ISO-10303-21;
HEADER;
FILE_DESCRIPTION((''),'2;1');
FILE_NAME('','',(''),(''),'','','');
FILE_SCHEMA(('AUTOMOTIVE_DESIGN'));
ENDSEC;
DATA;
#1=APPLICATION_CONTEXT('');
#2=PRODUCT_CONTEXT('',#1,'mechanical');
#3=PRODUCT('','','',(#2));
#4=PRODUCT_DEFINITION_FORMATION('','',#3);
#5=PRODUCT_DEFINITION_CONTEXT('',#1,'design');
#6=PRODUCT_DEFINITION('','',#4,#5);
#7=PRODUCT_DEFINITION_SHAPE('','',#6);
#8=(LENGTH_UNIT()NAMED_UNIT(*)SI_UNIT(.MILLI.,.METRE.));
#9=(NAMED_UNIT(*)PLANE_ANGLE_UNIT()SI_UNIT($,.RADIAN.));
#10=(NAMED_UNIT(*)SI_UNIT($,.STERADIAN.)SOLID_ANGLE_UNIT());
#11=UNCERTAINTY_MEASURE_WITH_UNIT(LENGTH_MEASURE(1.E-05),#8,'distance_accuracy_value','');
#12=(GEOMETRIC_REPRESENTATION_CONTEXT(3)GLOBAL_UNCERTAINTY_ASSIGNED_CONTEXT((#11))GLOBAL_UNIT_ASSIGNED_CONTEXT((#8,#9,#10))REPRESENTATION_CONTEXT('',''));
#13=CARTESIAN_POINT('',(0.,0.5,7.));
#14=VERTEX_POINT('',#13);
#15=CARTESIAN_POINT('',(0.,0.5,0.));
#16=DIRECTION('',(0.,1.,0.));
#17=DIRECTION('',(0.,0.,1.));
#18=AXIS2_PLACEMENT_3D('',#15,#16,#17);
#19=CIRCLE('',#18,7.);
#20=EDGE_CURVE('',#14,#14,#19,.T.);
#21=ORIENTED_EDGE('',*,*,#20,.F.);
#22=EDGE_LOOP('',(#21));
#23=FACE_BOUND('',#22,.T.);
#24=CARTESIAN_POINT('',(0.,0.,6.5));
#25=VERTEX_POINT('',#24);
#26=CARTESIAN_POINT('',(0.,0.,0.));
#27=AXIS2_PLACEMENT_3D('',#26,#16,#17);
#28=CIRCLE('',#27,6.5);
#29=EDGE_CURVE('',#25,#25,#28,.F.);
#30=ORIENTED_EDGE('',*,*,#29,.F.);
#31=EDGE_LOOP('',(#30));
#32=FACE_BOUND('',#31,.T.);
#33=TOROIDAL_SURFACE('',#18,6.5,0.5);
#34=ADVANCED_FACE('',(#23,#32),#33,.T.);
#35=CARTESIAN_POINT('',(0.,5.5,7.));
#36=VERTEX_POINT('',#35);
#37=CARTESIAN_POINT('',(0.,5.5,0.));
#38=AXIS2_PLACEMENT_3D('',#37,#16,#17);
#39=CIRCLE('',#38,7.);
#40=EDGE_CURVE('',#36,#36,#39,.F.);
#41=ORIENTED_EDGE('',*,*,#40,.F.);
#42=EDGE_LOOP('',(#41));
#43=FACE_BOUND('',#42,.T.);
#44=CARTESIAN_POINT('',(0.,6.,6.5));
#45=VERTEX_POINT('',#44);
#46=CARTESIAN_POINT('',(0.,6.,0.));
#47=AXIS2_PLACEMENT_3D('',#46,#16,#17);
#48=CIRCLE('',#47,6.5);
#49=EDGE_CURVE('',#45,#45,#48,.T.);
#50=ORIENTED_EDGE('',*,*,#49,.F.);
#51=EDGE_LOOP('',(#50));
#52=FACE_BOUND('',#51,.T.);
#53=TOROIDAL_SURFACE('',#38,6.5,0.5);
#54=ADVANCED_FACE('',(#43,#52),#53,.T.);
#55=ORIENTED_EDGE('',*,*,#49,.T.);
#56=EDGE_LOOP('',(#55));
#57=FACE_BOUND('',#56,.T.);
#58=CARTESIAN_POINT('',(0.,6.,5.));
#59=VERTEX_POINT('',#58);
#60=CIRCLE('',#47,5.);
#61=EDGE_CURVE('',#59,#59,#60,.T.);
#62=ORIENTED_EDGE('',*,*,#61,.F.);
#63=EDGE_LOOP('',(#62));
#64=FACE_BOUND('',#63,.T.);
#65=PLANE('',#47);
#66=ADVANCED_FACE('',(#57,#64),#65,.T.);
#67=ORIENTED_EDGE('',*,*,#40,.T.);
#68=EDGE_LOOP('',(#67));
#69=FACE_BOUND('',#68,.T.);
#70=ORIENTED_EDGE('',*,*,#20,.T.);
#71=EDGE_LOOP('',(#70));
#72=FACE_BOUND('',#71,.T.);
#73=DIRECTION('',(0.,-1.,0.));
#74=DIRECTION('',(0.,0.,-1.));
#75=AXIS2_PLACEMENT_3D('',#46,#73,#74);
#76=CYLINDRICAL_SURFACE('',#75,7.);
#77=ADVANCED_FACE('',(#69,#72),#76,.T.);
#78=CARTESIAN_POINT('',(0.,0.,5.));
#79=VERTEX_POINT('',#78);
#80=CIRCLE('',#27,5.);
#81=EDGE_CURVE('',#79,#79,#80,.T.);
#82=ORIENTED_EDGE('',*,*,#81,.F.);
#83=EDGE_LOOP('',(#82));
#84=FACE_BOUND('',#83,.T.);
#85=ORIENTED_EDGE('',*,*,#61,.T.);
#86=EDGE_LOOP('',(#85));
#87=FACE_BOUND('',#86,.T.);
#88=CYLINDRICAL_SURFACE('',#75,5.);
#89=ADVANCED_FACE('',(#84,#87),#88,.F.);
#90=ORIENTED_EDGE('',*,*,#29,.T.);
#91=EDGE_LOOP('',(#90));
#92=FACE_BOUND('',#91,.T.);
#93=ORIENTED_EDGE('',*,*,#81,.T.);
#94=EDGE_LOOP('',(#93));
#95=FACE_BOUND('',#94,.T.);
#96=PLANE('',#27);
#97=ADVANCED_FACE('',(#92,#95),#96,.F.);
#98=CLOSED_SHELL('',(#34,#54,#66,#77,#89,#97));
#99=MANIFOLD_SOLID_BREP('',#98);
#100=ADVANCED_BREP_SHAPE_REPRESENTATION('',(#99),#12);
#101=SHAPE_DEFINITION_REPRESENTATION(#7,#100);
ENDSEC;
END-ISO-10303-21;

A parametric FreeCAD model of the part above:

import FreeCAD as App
import Part
import Sketcher

V = App.Vector
Q = App.Units.Quantity


def edges_at(feature, points):
    """Names of the edges that pass closest to the given points."""
    edges = feature.Shape.Edges
    near = lambda p: min(range(len(edges)), key=lambda i: edges[i].distToShape(Part.Vertex(*p))[0])
    return sorted({f"Edge{near(p) + 1}" for p in points})

doc = App.newDocument("Part")
body = doc.addObject("PartDesign::Body", "Body")

# Sketch on XZ plane
sketch1 = body.newObject("Sketcher::SketchObject", "Sketch")
sketch1.AttachmentSupport = (doc.getObject("XZ_Plane"), [""])
sketch1.MapMode = "FlatFace"
sketch1.addGeometry([
    Part.Circle(V(0, 0, 0), V(0, 0, 1), 7),
    Part.Circle(V(0, 0, 0), V(0, 0, 1), 5),
], False)
sketch1.addConstraint([
    Sketcher.Constraint("Coincident", 0, 3, -1, 1),
    Sketcher.Constraint("Coincident", 1, 3, -1, 1),
    Sketcher.Constraint("Diameter", 0, Q("14 mm")),
    Sketcher.Constraint("Diameter", 1, Q("10 mm")),
])
pad1 = body.newObject("PartDesign::Pad", "Pad")
pad1.Profile = sketch1
pad1.Length = 6
pad1.Reversed = True
doc.recompute()

fillet = body.newObject("PartDesign::Fillet", "Fillet")
fillet.Base = (pad1, edges_at(pad1, [(-7, 0, 0), (-7, 6, 0)]))
fillet.Radius = 0.5

doc.recompute()
